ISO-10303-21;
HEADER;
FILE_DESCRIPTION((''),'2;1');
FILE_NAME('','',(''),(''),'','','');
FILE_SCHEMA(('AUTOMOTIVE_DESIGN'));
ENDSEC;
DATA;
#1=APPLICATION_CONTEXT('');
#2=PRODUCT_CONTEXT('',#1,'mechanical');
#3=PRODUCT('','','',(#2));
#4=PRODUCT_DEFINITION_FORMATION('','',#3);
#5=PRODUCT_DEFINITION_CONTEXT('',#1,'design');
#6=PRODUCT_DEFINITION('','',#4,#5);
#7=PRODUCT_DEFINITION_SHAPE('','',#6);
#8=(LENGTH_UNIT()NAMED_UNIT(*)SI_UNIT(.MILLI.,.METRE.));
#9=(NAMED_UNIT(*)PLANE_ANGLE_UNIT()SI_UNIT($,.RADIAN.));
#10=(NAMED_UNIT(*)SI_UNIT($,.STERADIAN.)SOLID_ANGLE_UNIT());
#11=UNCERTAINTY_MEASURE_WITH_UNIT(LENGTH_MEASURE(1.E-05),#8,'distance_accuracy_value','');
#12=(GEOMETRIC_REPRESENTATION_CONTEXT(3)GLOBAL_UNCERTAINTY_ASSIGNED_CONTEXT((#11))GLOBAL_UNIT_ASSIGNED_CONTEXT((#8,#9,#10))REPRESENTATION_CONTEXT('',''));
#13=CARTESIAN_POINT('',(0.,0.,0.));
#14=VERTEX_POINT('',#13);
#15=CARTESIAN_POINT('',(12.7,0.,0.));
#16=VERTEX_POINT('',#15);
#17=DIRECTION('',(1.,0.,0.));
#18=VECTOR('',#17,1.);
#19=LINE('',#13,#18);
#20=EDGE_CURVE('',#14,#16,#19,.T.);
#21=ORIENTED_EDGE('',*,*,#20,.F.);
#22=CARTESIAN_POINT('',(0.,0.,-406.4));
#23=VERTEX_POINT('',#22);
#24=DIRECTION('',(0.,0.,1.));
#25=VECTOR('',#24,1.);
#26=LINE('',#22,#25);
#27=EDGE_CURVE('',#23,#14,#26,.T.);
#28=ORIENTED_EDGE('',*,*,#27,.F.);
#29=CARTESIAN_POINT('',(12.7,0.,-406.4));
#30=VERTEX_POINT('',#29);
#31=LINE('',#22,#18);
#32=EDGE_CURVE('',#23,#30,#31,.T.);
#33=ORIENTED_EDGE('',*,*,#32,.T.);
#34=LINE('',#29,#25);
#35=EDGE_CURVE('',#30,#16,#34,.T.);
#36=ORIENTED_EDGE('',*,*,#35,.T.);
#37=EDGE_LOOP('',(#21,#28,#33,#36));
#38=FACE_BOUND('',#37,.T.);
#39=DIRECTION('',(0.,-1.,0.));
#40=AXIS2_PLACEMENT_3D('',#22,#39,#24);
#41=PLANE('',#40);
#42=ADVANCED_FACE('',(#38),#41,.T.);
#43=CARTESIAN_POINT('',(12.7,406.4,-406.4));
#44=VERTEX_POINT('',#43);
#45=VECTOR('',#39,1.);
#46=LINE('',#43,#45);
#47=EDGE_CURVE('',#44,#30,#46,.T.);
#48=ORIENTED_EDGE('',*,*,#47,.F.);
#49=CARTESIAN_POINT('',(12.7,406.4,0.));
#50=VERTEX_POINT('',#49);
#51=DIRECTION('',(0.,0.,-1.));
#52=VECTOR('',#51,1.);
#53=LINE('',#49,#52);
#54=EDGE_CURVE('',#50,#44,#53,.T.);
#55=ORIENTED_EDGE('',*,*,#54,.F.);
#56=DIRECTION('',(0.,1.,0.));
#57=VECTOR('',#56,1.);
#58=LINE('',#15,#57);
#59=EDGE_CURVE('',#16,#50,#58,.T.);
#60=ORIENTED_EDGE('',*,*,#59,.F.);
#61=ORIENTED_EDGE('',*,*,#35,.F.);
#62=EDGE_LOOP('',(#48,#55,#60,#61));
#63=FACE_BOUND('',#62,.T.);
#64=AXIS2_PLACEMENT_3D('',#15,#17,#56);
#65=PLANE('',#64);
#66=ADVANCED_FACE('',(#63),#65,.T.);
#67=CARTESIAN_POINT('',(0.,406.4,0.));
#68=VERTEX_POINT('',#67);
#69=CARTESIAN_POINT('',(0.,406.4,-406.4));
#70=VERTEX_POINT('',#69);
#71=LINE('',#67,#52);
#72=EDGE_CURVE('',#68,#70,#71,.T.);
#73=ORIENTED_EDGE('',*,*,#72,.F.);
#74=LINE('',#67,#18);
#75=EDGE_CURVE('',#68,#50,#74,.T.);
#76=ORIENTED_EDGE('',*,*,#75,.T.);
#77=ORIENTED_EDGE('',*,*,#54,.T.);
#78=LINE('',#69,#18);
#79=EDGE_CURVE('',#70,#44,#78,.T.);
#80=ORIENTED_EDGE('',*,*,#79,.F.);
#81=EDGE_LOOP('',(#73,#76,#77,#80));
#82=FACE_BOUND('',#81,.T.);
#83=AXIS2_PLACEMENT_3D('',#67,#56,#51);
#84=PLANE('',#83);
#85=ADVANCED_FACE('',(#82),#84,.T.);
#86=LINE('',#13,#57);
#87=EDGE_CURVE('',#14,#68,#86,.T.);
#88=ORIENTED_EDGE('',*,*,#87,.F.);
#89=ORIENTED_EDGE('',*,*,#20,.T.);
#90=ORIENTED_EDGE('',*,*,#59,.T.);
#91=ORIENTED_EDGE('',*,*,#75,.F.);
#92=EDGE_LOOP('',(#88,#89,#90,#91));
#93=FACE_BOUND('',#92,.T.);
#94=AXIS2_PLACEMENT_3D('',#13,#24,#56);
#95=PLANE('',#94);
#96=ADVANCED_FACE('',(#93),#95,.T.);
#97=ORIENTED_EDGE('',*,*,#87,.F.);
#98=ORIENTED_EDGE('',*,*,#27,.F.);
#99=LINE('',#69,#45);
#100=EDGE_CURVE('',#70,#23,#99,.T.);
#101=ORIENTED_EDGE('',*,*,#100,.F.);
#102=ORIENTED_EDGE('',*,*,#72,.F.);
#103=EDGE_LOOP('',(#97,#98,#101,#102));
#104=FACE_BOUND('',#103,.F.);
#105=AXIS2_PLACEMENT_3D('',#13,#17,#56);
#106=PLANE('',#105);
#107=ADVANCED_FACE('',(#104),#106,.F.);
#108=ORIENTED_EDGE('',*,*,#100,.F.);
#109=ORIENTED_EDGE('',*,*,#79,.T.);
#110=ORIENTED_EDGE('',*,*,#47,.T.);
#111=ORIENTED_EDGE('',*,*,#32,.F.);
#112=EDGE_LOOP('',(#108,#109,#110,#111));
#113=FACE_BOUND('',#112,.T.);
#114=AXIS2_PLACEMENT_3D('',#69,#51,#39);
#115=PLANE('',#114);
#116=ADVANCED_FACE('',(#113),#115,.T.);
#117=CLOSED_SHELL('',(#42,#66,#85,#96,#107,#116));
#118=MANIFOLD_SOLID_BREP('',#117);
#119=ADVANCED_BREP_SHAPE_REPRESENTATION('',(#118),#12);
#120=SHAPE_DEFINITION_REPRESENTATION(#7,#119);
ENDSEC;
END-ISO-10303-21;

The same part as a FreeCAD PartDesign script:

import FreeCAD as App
import Part
import Sketcher
from FreeCAD import Vector
Q = App.Units.Quantity

doc = App.newDocument("Part")
body = doc.addObject("PartDesign::Body", "Body")

sketch1 = body.newObject("Sketcher::SketchObject", "Sketch")
sketch1.AttachmentSupport = (doc.getObject("YZ_Plane"), [""])
sketch1.MapMode = "FlatFace"
sketch1.addGeometry(Part.LineSegment(Vector(406, 0, 0), Vector(0, 0, 0)), False)
sketch1.addGeometry(Part.LineSegment(Vector(0, 0, 0), Vector(0, -406, 0)), False)
sketch1.addGeometry(Part.LineSegment(Vector(0, -406, 0), Vector(406, -406, 0)), False)
sketch1.addGeometry(Part.LineSegment(Vector(406, -406, 0), Vector(406, 0, 0)), False)
sketch1.addConstraint(Sketcher.Constraint("Coincident", 0, 2, 1, 1))
sketch1.addConstraint(Sketcher.Constraint("Coincident", 1, 2, 2, 1))
sketch1.addConstraint(Sketcher.Constraint("Coincident", 2, 2, 3, 1))
sketch1.addConstraint(Sketcher.Constraint("Coincident", 3, 2, 0, 1))
sketch1.addConstraint(Sketcher.Constraint("Horizontal", 0))
sketch1.addConstraint(Sketcher.Constraint("Vertical", 1))
sketch1.addConstraint(Sketcher.Constraint("Horizontal", 2))
sketch1.addConstraint(Sketcher.Constraint("Vertical", 3))
sketch1.addConstraint(Sketcher.Constraint("Coincident", 0, 2, -1, 1))
sketch1.addConstraint(Sketcher.Constraint("Equal", 2, 1))
sketch1.addConstraint(Sketcher.Constraint("DistanceX", 0, 2, 0, 1, Q("16 in")))
pad1 = body.newObject("PartDesign::Pad", "Pad")
pad1.Profile = sketch1
pad1.Length = Q("0.5 in")

doc.recompute()
